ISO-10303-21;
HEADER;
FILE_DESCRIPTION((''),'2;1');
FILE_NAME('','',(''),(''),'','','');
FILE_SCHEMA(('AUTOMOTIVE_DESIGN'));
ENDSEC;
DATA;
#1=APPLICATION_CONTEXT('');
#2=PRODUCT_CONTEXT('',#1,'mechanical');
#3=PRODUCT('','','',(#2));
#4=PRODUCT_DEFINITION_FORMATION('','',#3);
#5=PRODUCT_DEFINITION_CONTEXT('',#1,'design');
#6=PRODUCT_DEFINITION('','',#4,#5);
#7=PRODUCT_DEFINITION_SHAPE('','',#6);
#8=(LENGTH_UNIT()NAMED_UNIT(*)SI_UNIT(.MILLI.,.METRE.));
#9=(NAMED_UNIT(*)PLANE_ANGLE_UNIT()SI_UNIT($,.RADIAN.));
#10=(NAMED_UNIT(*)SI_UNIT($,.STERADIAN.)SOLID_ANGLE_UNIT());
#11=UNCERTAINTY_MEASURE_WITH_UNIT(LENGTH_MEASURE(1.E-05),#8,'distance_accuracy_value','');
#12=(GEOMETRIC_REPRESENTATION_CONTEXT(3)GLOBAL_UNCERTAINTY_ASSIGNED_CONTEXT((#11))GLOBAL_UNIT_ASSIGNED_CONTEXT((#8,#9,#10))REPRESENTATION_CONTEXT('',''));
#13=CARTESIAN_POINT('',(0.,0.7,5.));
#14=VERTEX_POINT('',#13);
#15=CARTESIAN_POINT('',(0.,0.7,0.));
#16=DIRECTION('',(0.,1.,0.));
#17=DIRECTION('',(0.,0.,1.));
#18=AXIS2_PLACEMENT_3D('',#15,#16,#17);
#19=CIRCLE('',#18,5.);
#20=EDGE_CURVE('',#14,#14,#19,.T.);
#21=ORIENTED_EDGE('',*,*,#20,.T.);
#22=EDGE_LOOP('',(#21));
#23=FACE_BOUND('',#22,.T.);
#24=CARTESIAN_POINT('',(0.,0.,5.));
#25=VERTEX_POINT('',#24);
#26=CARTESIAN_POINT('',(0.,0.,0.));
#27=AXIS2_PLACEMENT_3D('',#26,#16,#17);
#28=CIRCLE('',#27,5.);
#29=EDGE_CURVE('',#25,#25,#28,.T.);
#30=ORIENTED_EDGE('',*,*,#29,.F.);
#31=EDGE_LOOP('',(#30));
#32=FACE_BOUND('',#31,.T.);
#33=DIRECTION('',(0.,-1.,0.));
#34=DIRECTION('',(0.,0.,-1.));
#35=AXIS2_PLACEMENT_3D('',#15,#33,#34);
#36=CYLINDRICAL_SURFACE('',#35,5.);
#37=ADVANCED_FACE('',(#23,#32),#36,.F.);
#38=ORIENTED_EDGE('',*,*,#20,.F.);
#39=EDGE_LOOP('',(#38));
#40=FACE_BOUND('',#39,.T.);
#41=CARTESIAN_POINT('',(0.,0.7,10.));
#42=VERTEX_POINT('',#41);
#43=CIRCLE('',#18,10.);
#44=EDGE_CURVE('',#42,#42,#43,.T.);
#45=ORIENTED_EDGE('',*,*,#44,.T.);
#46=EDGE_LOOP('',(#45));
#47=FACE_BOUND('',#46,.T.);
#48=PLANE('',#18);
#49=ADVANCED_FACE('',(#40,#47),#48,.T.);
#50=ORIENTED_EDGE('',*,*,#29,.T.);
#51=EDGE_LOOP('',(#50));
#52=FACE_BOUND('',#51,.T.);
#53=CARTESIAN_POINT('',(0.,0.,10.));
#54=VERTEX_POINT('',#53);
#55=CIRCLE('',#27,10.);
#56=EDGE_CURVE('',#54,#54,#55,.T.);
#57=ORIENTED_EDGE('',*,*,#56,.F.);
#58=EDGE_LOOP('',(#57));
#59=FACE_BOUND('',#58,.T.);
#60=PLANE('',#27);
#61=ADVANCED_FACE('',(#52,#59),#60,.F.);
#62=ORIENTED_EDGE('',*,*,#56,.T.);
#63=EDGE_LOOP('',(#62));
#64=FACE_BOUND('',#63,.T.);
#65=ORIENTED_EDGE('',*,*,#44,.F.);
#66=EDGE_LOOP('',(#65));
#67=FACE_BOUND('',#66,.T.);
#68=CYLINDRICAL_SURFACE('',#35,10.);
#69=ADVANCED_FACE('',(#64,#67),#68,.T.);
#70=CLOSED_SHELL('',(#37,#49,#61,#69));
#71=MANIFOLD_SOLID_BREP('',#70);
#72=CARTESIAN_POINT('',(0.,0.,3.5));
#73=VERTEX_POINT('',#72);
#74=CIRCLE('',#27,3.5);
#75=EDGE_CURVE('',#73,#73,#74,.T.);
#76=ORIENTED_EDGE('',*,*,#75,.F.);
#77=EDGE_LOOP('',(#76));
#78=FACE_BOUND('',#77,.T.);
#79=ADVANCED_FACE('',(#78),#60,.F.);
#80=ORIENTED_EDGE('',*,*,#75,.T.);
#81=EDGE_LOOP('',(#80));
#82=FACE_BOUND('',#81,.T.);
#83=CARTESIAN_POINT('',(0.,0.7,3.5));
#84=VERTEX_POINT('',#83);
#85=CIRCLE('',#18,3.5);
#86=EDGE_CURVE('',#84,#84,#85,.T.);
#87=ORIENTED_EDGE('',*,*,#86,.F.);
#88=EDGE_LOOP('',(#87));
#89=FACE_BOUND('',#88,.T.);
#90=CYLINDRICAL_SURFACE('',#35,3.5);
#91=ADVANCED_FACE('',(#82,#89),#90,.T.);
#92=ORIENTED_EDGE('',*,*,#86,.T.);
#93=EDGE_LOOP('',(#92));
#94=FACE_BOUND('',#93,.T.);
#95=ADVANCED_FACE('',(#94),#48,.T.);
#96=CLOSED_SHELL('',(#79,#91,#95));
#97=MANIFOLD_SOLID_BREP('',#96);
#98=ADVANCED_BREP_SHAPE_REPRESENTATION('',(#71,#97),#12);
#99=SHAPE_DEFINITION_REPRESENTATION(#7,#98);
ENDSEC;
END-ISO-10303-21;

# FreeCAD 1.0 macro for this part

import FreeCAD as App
import Part
import Sketcher
from FreeCAD import Vector
Q = App.Units.Quantity

doc = App.newDocument("Part")
body = doc.addObject("PartDesign::Body", "Body")

sketch1 = doc.addObject("Sketcher::SketchObject", "Sketch")
body.addObject(sketch1)
sketch1.AttachmentSupport = (doc.XZ_Plane, [""])
sketch1.MapMode = "FlatFace"
sketch1.addGeometry([
    Part.Circle(Vector(0, 0, 0), Vector(0, 0, 1), 10),
    Part.Circle(Vector(0, 0, 0), Vector(0, 0, 1), 5),
], False)
sketch1.addConstraint([
    Sketcher.Constraint("Coincident", 0, 3, -1, 1),
    Sketcher.Constraint("Coincident", 1, 3, -1, 1),
    Sketcher.Constraint("Diameter", 0, Q("20 mm")),
    Sketcher.Constraint("Diameter", 1, Q("10 mm")),
])
pad1 = doc.addObject("PartDesign::Pad", "Pad")
body.addObject(pad1)
pad1.Profile = sketch1
pad1.Length = 0.7
pad1.Reversed = True
body2 = doc.addObject("PartDesign::Body", "Body001")

sketch2 = doc.addObject("Sketcher::SketchObject", "Sketch001")
body2.addObject(sketch2)
sketch2.AttachmentSupport = (doc.getObject("XZ_Plane001"), [""])
sketch2.MapMode = "FlatFace"
sketch2.addGeometry(Part.Circle(Vector(0, 0, 0), Vector(0, 0, 1), 3.5), False)
sketch2.addConstraint([
    Sketcher.Constraint("Coincident", 0, 3, -1, 1),
    Sketcher.Constraint("Diameter", 0, Q("7 mm")),
])
pad2 = doc.addObject("PartDesign::Pad", "Pad001")
body2.addObject(pad2)
pad2.Profile = sketch2
pad2.Length = 0.7
pad2.Reversed = True

doc.recompute()
